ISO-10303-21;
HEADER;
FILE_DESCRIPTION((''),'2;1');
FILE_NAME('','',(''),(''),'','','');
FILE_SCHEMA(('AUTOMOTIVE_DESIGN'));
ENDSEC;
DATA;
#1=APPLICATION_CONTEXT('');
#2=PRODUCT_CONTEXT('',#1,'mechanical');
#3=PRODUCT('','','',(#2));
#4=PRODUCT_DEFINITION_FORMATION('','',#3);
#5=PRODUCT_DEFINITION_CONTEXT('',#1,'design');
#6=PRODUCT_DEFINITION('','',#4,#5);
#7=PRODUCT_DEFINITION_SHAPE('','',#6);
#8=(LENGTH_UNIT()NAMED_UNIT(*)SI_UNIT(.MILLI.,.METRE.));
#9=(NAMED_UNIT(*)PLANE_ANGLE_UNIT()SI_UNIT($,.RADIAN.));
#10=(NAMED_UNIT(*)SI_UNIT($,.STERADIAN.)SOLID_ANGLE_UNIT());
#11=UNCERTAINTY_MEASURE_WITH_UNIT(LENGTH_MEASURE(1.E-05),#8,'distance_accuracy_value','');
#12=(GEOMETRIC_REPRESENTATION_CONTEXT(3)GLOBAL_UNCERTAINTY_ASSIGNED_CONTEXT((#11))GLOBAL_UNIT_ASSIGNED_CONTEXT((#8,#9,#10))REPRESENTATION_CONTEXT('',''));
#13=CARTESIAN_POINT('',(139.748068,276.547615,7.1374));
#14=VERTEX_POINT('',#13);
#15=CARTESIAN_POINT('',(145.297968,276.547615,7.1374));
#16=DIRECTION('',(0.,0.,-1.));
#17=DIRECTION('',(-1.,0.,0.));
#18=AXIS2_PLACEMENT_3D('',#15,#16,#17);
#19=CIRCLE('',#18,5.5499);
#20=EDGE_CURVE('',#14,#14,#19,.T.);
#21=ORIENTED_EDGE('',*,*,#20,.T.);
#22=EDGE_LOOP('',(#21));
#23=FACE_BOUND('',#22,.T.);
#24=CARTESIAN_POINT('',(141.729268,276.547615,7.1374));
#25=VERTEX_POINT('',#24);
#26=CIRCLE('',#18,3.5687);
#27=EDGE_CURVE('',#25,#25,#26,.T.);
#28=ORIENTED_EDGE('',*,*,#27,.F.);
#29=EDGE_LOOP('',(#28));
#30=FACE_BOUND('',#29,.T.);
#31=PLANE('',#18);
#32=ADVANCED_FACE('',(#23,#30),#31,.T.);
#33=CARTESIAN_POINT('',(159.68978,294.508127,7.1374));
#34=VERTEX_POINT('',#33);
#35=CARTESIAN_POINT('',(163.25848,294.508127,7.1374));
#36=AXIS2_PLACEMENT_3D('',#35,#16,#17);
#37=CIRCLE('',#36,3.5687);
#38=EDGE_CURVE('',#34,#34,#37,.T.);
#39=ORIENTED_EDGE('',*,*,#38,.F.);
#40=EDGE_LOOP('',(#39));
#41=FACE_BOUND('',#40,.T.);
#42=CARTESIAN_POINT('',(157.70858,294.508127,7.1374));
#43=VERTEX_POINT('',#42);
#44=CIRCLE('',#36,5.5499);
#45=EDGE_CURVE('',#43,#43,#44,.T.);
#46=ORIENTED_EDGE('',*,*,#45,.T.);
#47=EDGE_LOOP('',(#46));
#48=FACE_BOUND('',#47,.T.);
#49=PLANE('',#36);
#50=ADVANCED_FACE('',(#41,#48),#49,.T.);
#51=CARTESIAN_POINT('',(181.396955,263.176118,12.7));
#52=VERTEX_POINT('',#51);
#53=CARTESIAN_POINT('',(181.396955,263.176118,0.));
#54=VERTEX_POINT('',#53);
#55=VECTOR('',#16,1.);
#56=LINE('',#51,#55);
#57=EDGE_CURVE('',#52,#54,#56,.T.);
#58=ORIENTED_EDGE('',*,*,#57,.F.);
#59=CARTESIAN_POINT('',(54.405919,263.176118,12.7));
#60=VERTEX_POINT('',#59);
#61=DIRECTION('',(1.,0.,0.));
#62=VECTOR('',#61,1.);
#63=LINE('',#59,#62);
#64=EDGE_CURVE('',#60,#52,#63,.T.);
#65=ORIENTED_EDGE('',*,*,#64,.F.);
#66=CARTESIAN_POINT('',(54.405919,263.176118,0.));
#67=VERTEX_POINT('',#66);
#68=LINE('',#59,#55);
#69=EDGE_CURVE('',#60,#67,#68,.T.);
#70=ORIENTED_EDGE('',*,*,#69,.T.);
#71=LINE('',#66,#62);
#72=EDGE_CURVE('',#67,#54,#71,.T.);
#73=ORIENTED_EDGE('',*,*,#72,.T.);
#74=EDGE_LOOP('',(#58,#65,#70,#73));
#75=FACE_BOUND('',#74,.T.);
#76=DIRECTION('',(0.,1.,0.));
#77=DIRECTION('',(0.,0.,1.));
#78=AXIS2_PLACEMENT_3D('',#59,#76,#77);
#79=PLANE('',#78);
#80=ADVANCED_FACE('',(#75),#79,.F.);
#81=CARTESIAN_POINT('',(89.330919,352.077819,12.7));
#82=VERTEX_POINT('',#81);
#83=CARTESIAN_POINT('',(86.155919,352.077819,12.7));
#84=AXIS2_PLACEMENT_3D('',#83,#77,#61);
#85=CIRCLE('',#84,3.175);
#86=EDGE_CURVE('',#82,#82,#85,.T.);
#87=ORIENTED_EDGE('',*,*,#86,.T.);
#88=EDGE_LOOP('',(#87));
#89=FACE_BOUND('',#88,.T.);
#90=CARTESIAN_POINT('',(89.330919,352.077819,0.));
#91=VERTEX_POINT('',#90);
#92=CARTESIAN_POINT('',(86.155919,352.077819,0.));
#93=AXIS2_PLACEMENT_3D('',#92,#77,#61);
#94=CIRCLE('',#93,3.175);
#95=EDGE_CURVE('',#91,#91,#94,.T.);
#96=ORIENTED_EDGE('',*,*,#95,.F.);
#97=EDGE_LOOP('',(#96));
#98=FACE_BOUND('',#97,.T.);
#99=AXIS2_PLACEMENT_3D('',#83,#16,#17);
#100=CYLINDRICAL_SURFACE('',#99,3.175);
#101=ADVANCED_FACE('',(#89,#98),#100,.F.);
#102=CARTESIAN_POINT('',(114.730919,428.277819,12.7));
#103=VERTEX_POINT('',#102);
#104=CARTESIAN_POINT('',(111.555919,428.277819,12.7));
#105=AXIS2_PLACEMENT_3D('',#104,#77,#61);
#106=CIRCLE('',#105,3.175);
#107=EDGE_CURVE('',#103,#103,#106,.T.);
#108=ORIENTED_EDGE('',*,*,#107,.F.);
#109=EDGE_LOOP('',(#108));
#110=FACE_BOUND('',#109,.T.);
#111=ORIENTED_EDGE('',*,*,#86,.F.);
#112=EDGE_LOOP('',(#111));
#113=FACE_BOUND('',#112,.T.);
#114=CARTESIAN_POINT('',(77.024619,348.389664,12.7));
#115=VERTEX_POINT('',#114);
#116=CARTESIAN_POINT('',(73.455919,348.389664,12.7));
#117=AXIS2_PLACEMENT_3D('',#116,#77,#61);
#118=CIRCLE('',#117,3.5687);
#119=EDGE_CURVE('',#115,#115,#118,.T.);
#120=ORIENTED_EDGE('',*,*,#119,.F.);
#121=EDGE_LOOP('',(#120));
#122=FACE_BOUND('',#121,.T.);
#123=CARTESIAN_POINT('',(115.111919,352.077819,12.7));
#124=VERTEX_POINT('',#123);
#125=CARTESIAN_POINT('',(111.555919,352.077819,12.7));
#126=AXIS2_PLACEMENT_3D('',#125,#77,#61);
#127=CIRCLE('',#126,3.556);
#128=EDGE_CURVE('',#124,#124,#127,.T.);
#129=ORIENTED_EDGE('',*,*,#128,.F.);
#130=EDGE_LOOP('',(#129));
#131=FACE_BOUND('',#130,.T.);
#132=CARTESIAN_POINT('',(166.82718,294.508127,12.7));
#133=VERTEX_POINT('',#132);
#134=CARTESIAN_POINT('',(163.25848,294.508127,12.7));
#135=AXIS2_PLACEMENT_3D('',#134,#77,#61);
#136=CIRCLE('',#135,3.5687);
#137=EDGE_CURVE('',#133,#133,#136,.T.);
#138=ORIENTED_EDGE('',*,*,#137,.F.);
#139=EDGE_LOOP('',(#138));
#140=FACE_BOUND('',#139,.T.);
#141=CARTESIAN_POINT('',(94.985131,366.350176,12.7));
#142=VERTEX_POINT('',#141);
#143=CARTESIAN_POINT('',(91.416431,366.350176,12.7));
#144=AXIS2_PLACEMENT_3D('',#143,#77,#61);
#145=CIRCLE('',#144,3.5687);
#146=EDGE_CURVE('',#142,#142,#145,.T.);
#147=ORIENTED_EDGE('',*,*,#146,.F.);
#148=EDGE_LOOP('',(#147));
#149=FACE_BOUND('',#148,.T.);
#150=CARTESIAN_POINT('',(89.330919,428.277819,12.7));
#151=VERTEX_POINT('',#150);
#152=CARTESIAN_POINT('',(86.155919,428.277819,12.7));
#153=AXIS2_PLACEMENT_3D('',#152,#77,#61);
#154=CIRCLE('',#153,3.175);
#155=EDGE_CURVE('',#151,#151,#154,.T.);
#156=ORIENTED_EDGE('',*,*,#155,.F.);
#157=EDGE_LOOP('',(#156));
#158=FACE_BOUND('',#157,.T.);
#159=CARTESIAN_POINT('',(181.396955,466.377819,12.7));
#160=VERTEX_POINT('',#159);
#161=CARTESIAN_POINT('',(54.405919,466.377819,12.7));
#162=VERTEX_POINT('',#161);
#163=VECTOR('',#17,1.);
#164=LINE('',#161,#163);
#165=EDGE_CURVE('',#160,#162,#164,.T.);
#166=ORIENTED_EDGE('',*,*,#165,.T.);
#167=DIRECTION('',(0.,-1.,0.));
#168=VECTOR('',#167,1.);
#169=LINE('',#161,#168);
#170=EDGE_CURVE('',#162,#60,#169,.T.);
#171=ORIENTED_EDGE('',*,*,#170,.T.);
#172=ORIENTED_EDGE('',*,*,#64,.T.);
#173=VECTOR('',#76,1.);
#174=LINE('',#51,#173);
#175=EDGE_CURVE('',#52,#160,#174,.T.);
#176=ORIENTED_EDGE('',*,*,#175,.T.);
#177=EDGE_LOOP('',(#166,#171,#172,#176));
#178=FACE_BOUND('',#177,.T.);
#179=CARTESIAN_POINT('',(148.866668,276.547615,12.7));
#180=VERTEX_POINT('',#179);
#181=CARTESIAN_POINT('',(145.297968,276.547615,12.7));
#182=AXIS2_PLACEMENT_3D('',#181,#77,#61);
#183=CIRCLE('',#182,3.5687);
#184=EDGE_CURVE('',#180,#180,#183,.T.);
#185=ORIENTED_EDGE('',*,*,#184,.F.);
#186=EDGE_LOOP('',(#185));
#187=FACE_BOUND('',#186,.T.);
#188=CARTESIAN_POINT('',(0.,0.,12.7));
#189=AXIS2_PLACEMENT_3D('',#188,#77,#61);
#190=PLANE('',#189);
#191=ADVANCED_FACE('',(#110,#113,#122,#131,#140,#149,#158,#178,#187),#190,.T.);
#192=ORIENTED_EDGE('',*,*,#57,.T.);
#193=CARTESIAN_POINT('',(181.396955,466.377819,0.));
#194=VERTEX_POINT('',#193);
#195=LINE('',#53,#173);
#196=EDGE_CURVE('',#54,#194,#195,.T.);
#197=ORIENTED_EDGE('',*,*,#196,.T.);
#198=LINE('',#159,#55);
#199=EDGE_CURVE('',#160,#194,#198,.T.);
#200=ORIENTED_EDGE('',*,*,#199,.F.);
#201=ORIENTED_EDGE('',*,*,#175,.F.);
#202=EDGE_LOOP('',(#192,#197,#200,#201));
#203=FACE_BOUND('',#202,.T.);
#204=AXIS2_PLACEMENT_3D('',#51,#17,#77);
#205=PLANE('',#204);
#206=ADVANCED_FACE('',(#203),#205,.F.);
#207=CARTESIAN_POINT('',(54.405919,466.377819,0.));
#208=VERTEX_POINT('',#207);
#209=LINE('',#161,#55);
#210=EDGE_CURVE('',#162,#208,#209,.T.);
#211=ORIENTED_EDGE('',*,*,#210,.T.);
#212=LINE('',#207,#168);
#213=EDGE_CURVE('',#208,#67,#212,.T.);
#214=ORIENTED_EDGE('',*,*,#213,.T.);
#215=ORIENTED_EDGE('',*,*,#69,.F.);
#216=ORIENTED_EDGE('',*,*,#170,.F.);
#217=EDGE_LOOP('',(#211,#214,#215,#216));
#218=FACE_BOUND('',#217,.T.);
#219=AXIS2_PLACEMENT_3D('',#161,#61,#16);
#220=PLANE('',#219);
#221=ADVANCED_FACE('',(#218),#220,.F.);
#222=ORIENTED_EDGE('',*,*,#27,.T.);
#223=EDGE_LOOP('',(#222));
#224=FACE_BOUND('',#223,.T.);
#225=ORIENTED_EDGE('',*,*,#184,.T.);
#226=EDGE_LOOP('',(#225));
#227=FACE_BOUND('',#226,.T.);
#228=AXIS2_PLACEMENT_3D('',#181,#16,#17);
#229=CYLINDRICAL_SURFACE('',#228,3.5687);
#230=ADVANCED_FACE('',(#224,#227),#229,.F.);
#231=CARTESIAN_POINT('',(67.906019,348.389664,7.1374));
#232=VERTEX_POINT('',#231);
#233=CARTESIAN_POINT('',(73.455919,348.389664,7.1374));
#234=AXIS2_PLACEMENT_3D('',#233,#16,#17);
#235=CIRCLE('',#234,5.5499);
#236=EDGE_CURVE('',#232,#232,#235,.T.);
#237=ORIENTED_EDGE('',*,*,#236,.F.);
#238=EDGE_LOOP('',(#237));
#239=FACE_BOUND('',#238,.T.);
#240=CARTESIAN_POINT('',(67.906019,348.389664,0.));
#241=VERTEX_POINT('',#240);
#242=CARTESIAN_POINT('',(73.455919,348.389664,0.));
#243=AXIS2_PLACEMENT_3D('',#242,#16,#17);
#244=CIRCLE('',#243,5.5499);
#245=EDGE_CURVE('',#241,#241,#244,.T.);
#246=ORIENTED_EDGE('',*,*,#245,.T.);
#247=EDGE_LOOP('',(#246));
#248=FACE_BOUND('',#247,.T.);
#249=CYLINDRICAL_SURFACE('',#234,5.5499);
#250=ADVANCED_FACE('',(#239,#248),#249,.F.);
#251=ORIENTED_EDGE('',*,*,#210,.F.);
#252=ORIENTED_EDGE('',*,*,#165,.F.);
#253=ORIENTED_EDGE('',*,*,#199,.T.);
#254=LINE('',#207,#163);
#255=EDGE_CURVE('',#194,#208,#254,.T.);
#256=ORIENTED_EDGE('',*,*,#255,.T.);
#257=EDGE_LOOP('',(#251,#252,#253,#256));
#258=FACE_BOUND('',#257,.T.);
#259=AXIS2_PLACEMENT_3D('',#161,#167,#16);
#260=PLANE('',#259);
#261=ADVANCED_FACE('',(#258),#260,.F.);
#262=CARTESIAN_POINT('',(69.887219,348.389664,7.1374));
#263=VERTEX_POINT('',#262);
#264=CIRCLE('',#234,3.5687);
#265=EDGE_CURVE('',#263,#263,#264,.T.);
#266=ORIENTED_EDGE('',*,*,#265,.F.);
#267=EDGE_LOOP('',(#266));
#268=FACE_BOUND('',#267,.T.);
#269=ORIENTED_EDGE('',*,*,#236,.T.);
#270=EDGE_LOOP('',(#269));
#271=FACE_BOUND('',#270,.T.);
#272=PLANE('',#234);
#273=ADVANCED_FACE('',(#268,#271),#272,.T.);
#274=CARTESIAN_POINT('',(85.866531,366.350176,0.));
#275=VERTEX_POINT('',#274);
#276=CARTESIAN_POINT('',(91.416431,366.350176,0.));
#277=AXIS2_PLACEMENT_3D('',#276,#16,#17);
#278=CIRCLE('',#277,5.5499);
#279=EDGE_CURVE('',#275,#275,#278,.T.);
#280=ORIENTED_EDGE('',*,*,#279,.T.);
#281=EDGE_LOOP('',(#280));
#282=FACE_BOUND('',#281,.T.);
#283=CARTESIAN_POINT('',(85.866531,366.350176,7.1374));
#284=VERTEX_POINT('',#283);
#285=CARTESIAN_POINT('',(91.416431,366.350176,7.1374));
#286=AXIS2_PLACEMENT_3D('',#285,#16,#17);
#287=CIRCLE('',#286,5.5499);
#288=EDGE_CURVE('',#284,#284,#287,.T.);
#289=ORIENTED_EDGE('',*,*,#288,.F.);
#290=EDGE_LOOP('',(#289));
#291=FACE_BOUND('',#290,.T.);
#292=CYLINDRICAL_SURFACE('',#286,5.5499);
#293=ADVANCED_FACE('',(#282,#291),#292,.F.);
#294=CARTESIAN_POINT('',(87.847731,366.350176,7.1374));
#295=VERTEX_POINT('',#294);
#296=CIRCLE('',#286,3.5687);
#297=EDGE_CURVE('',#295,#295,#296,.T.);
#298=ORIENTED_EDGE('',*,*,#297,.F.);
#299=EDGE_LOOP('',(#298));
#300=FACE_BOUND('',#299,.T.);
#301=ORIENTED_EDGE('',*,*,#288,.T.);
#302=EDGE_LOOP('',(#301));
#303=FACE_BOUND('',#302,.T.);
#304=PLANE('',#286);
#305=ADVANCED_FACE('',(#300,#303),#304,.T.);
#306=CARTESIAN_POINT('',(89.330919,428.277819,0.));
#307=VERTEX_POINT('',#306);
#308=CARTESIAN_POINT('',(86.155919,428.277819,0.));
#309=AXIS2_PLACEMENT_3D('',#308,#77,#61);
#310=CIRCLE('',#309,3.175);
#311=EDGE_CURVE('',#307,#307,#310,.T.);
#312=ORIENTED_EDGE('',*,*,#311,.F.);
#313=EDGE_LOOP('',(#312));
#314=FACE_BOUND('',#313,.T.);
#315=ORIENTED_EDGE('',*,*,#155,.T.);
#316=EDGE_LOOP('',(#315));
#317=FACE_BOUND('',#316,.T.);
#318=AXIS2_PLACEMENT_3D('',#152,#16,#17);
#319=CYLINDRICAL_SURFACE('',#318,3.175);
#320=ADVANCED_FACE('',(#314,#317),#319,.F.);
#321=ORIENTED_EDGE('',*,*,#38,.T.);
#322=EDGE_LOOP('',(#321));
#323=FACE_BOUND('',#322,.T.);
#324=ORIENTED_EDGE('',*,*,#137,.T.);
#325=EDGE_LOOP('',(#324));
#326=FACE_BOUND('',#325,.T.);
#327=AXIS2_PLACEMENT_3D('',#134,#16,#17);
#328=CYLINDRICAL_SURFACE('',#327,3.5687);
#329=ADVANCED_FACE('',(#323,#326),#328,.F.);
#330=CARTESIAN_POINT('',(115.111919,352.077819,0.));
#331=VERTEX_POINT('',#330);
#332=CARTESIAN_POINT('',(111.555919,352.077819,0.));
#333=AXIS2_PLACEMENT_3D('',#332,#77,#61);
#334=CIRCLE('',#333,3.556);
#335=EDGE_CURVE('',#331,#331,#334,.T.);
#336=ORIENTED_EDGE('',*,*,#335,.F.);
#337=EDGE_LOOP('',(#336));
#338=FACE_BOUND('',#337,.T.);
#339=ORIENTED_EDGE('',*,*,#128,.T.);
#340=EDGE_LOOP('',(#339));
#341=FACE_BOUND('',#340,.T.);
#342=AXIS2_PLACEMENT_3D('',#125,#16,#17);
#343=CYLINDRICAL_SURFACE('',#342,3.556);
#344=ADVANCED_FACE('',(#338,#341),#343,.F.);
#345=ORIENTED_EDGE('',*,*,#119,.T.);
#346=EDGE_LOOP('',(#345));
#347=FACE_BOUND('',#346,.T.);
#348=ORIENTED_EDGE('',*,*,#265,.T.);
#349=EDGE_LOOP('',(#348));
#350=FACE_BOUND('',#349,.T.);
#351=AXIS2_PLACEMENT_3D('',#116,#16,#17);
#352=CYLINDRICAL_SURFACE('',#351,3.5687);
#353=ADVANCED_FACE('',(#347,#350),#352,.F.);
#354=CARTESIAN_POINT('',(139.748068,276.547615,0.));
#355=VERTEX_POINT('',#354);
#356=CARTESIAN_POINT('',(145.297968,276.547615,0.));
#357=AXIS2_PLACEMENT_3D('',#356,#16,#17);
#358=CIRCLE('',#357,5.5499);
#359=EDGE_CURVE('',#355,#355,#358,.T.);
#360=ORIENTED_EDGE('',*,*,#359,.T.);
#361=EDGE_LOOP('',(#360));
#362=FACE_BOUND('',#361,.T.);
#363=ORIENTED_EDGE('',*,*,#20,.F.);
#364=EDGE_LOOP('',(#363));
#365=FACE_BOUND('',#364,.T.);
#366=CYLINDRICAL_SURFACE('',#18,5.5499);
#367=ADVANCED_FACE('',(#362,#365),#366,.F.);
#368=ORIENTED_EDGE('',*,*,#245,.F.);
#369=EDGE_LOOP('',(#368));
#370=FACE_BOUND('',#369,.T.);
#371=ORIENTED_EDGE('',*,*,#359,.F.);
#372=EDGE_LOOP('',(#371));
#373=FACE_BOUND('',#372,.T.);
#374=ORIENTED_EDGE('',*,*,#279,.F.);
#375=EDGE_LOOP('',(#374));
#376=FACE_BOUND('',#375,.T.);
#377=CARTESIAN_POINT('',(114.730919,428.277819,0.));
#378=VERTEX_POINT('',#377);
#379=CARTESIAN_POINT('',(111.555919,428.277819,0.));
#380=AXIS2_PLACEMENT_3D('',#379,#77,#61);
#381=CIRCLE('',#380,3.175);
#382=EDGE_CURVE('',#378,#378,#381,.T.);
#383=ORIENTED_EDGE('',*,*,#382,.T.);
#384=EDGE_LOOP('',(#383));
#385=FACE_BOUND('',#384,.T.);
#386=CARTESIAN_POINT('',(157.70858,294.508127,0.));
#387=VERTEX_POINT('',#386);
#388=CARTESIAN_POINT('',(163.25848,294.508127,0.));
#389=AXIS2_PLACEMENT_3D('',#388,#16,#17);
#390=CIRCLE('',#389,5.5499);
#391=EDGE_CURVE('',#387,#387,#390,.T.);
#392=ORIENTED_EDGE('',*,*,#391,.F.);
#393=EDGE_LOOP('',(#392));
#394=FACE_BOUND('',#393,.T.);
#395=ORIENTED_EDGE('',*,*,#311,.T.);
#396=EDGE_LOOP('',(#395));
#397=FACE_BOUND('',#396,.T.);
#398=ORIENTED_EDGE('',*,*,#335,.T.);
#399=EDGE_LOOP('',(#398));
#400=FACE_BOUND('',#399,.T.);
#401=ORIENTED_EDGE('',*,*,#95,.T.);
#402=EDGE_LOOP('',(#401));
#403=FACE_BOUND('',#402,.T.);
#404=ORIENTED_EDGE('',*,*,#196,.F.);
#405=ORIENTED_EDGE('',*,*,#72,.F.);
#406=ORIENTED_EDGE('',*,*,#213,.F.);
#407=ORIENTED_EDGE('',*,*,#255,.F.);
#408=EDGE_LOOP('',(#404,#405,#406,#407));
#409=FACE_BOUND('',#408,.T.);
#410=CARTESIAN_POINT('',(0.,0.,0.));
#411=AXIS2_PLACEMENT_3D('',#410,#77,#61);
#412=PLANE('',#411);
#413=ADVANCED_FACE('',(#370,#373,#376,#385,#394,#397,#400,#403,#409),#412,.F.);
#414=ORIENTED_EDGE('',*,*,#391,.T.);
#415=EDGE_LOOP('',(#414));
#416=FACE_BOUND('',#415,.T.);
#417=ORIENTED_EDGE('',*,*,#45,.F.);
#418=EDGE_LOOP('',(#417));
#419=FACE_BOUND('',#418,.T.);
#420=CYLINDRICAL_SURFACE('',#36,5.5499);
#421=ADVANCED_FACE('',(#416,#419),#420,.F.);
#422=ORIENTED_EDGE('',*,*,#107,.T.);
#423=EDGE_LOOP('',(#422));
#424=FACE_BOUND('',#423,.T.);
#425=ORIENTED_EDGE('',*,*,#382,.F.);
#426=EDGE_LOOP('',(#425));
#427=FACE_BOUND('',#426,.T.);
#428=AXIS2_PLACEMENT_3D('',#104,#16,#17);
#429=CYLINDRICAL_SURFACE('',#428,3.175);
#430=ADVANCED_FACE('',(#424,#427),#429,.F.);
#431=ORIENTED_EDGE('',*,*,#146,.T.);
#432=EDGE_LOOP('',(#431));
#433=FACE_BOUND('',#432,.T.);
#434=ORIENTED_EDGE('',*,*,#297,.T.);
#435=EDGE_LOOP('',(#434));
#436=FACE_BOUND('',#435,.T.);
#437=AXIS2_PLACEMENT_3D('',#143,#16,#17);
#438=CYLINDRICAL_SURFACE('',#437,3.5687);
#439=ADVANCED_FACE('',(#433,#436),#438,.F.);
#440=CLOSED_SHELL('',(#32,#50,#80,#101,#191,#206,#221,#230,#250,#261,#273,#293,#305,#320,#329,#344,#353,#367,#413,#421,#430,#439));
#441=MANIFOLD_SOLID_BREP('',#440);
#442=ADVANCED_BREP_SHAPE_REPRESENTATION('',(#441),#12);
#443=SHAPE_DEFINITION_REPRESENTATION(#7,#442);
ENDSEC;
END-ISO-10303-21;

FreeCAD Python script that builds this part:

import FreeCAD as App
import Part
import Sketcher
from FreeCAD import Vector
Q = App.Units.Quantity


def add_polygon(sketch, points):
    """Adds a closed chain of lines whose ends are joined by coincident constraints."""
    first, n = sketch.GeometryCount, len(points)
    for a, b in zip(points, points[1:] + points[:1]):
        sketch.addGeometry(Part.LineSegment(App.Vector(*a, 0), App.Vector(*b, 0)), False)
    for i in range(n):
        sketch.addConstraint(Sketcher.Constraint("Coincident", first + i, 2, first + (i + 1) % n, 1))

doc = App.newDocument("Part")
body = doc.addObject("PartDesign::Body", "Body")

# Sketch on XY plane
sketch1 = body.newObject("Sketcher::SketchObject", "Sketch")
sketch1.AttachmentSupport = (doc.getObject("XY_Plane"), [""])
sketch1.MapMode = "FlatFace"
add_polygon(sketch1, [(54.4, 466.4), (54.4, 263.2), (181.4, 263.2), (181.4, 466.4)])  # lines 0-3
sketch1.addGeometry(Part.Circle(Vector(73.5, 348.4, 0), Vector(0, 0, 1), 3.6), False)  # 4
sketch1.addGeometry(Part.Circle(Vector(86.2, 352.1, 0), Vector(0, 0, 1), 3.2), False)  # 5
sketch1.addGeometry(Part.Circle(Vector(111.6, 352.1, 0), Vector(0, 0, 1), 3.6), False)  # 6
sketch1.addGeometry(Part.Circle(Vector(145.3, 276.5, 0), Vector(0, 0, 1), 3.6), False)  # 7
sketch1.addGeometry(Part.Circle(Vector(163.3, 294.5, 0), Vector(0, 0, 1), 3.6), False)  # 8
sketch1.addGeometry(Part.Circle(Vector(91.4, 366.4, 0), Vector(0, 0, 1), 3.6), False)  # 9
sketch1.addGeometry(Part.Circle(Vector(86.2, 428.3, 0), Vector(0, 0, 1), 3.2), False)  # 10
sketch1.addGeometry(Part.Circle(Vector(111.6, 428.3, 0), Vector(0, 0, 1), 3.2), False)  # 11
sketch1.addConstraint([
    Sketcher.Constraint("Vertical", 0),
    Sketcher.Constraint("Horizontal", 1),
    Sketcher.Constraint("Vertical", 2),
    Sketcher.Constraint("Horizontal", 3),
    Sketcher.Constraint("Equal", 4, 7),
    Sketcher.Constraint("Equal", 7, 8),
    Sketcher.Constraint("Equal", 8, 9),
    Sketcher.Constraint("Equal", 5, 10),
    Sketcher.Constraint("Equal", 10, 11),
    Sketcher.Constraint("Horizontal", 5, 3, 6, 3),
    Sketcher.Constraint("Horizontal", 10, 3, 11, 3),
    Sketcher.Constraint("Vertical", 5, 3, 10, 3),
    Sketcher.Constraint("Vertical", 6, 3, 11, 3),
    Sketcher.Constraint("Diameter", 5, Q("0.25 in")),
    Sketcher.Constraint("Diameter", 6, Q("0.28 in")),
    Sketcher.Constraint("Diameter", 4, Q("0.281 in")),
    Sketcher.Constraint("DistanceX", 5, 3, 6, 3, Q("1 in")),
    Sketcher.Constraint("DistanceY", 5, 3, 10, 3, Q("3 in")),
    Sketcher.Constraint("DistanceX", 4, 3, 5, 3, Q("0.5 in")),
    Sketcher.Constraint("DistanceY", 11, 3, 2, 2, Q("1.5 in")),
    Sketcher.Constraint("DistanceX", 0, 2, 4, 3, Q("0.75 in")),
    Sketcher.Constraint("DistanceY", 0, 2, 0, 1, Q("203.201701 mm")),
    Sketcher.Constraint("DistanceX", 1, 1, 1, 2, Q("126.991037 mm")),
    Sketcher.Constraint("DistanceX", -1, 1, 4, 3, Q("73.455919 mm")),
    Sketcher.Constraint("DistanceY", -1, 1, 5, 3, Q("352.077819 mm")),
    Sketcher.Constraint("DistanceX", -1, 1, 8, 3, Q("163.25848 mm")),
    Sketcher.Constraint("DistanceX", -1, 1, 9, 3, Q("91.416431 mm")),
    Sketcher.Constraint("DistanceX", 6, 3, 7, 3, Q("33.742049 mm")),
    Sketcher.Constraint("DistanceY", 7, 3, 4, 3, Q("71.842049 mm")),
    Sketcher.Constraint("DistanceY", 8, 3, 9, 3, Q("71.842049 mm")),
    Sketcher.Constraint("DistanceY", 7, 3, 9, 3, Q("89.802561 mm")),
    Sketcher.Constraint("DistanceY", 1, 2, 8, 3, Q("31.332009 mm")),
])
pad1 = body.newObject("PartDesign::Pad", "Pad")
pad1.Profile = sketch1
pad1.Length = Q("0.5 in")

# Sketch on XY plane
sketch2 = body.newObject("Sketcher::SketchObject", "Sketch001")
sketch2.AttachmentSupport = (doc.getObject("XY_Plane"), [""])
sketch2.MapMode = "FlatFace"
sketch2.addGeometry([
    Part.Circle(Vector(91, 366, 0), Vector(0, 0, 1), 6),
    Part.Circle(Vector(73, 348, 0), Vector(0, 0, 1), 6),
    Part.Circle(Vector(163, 295, 0), Vector(0, 0, 1), 6),
    Part.Circle(Vector(145, 277, 0), Vector(0, 0, 1), 6),
], False)
sketch2.addConstraint([
    Sketcher.Constraint("Equal", 0, 1),
    Sketcher.Constraint("Equal", 1, 2),
    Sketcher.Constraint("Equal", 2, 3),
    Sketcher.Constraint("Diameter", 0, Q("0.437 in")),
    Sketcher.Constraint("DistanceX", -1, 1, 0, 3, Q("91.416431 mm")),
    Sketcher.Constraint("DistanceX", -1, 1, 1, 3, Q("73.455919 mm")),
    Sketcher.Constraint("DistanceX", -1, 1, 2, 3, Q("163.25848 mm")),
    Sketcher.Constraint("DistanceY", 2, 3, 0, 3, Q("71.842049 mm")),
    Sketcher.Constraint("DistanceX", 1, 3, 3, 3, Q("71.842049 mm")),
    Sketcher.Constraint("DistanceY", 3, 3, 1, 3, Q("71.842049 mm")),
    Sketcher.Constraint("DistanceY", 3, 3, 0, 3, Q("89.802561 mm")),
    Sketcher.Constraint("DistanceY", -1, 1, 0, 3, Q("366.350176 mm")),
])
pocket1 = body.newObject("PartDesign::Pocket", "Pocket")
pocket1.Profile = sketch2
pocket1.Length = Q("0.281 in")
pocket1.Reversed = True

doc.recompute()
